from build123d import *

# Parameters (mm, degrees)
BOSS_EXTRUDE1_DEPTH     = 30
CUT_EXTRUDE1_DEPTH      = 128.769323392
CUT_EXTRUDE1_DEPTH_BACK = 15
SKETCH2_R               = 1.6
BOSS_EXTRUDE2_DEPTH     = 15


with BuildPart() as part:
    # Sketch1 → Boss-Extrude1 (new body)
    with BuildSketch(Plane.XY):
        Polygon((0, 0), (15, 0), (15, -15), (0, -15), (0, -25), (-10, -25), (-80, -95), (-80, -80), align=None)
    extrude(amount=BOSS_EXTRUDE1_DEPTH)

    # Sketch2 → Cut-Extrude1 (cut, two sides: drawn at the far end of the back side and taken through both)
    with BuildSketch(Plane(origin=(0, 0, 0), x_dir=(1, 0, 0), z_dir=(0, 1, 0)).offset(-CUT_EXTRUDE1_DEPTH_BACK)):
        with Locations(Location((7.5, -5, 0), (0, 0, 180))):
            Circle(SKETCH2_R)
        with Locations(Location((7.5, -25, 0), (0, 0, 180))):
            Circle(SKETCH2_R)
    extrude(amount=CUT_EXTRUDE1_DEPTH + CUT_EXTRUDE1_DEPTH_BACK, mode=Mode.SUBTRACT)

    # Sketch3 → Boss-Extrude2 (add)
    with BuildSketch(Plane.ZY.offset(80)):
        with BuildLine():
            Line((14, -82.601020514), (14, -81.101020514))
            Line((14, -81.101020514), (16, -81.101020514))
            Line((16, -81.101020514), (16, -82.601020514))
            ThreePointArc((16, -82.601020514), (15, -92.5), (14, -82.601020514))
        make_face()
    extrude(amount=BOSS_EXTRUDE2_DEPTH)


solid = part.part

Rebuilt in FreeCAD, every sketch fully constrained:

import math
import FreeCAD as App
import Part
import Sketcher

V = App.Vector


def add_polygon(sketch, points):
    """Adds a closed chain of lines whose ends are joined by coincident constraints."""
    first, n = sketch.GeometryCount, len(points)
    for a, b in zip(points, points[1:] + points[:1]):
        sketch.addGeometry(Part.LineSegment(App.Vector(*a, 0), App.Vector(*b, 0)), False)
    for i in range(n):
        sketch.addConstraint(Sketcher.Constraint("Coincident", first + i, 2, first + (i + 1) % n, 1))

doc = App.newDocument("Part")
body = doc.addObject("PartDesign::Body", "Body")

# Sketch on XY plane
sketch1 = doc.addObject("Sketcher::SketchObject", "Sketch")
body.addObject(sketch1)
sketch1.AttachmentSupport = (doc.XY_Plane, [""])
sketch1.MapMode = "FlatFace"
add_polygon(sketch1, [(15, 0), (0, 0), (-80, -80), (-80, -95), (-10, -25), (0, -25), (0, -15), (15, -15)])  # lines 0-7
sketch1.addConstraint([
    Sketcher.Constraint("Horizontal", 0),
    Sketcher.Constraint("Vertical", 2),
    Sketcher.Constraint("Horizontal", 4),
    Sketcher.Constraint("Vertical", 5),
    Sketcher.Constraint("Horizontal", 6),
    Sketcher.Constraint("Vertical", 7),
    Sketcher.Constraint("Coincident", 0, 2, -1, 1),
    Sketcher.Constraint("PointOnObject", 4, 2, -2),
    Sketcher.Constraint("Parallel", 1, 3),
    Sketcher.Constraint("Equal", 6, 2),
    Sketcher.Constraint("Equal", 4, 5),
    Sketcher.Constraint("Equal", 2, 7),
    Sketcher.Constraint("DistanceX", 0, 2, 0, 1, 15.0),
    Sketcher.Constraint("DistanceX", 4, 1, 4, 2, 10.0),
    Sketcher.Constraint("DistanceX", 1, 2, -1, 1, 80.0),
])
pad1 = doc.addObject("PartDesign::Pad", "Pad")
body.addObject(pad1)
pad1.Profile = sketch1
pad1.Length = 30

# Sketch on XZ plane
sketch2 = doc.addObject("Sketcher::SketchObject", "Sketch001")
body.addObject(sketch2)
sketch2.AttachmentSupport = (doc.XZ_Plane, [""])
sketch2.MapMode = "FlatFace"
sketch2.addGeometry([
    Part.Circle(V(7.5, 5, 0), V(0, 0, 1), 1.6),
    Part.Circle(V(7.5, 25, 0), V(0, 0, 1), 1.6),
], False)
sketch2.addConstraint([
    Sketcher.Constraint("Equal", 0, 1),
    Sketcher.Constraint("Vertical", 0, 3, 1, 3),
    Sketcher.Constraint("Diameter", 0, 3.2),
    Sketcher.Constraint("DistanceY", -1, 1, 0, 3, 5.0),
    Sketcher.Constraint("DistanceY", -1, 1, 1, 3, 25.0),
    Sketcher.Constraint("DistanceX", -1, 1, 0, 3, 7.5),
])
pocket1 = doc.addObject("PartDesign::Pocket", "Pocket")
body.addObject(pocket1)
pocket1.Profile = sketch2
pocket1.Type = "ThroughAll"
pocket1.Midplane = True

# Sketch on YZ plane
sketch3 = doc.addObject("Sketcher::SketchObject", "Sketch002")
body.addObject(sketch3)
sketch3.AttachmentSupport = (doc.YZ_Plane, [""])
sketch3.MapMode = "FlatFace"
sketch3.AttachmentOffset = App.Placement(V(0, 0, -80), App.Rotation())
sketch3.addGeometry([
    Part.LineSegment(V(-81.1, 14, 0), V(-82.6, 14, 0)),
    Part.ArcOfCircle(Part.Circle(V(-87.5, 15, 0), V(0, 0, 1), 5), math.radians(12), math.radians(348)),
    Part.LineSegment(V(-82.6, 16, 0), V(-81.1, 16, 0)),
    Part.LineSegment(V(-81.1, 16, 0), V(-81.1, 14, 0)),
], False)
sketch3.addConstraint([
    Sketcher.Constraint("Coincident", 0, 2, 1, 2),
    Sketcher.Constraint("Coincident", 1, 1, 2, 1),
    Sketcher.Constraint("Coincident", 2, 2, 3, 1),
    Sketcher.Constraint("Coincident", 3, 2, 0, 1),
    Sketcher.Constraint("Horizontal", 0),
    Sketcher.Constraint("Horizontal", 2),
    Sketcher.Constraint("Vertical", 3),
    Sketcher.Constraint("Vertical", 0, 2, 1, 1),
    Sketcher.Constraint("Radius", 1, 5.0),
    Sketcher.Constraint("DistanceY", 3, 2, 3, 1, 2.0),
    Sketcher.Constraint("DistanceX", 0, 2, 0, 1, 1.5),
    Sketcher.Constraint("DistanceY", -1, 1, 1, 3, 15.0),
    Sketcher.Constraint("DistanceX", 1, 3, -1, 1, 87.5),
])
pad2 = doc.addObject("PartDesign::Pad", "Pad001")
body.addObject(pad2)
pad2.Profile = sketch3
pad2.Length = 15
pad2.Reversed = True

doc.recompute()
